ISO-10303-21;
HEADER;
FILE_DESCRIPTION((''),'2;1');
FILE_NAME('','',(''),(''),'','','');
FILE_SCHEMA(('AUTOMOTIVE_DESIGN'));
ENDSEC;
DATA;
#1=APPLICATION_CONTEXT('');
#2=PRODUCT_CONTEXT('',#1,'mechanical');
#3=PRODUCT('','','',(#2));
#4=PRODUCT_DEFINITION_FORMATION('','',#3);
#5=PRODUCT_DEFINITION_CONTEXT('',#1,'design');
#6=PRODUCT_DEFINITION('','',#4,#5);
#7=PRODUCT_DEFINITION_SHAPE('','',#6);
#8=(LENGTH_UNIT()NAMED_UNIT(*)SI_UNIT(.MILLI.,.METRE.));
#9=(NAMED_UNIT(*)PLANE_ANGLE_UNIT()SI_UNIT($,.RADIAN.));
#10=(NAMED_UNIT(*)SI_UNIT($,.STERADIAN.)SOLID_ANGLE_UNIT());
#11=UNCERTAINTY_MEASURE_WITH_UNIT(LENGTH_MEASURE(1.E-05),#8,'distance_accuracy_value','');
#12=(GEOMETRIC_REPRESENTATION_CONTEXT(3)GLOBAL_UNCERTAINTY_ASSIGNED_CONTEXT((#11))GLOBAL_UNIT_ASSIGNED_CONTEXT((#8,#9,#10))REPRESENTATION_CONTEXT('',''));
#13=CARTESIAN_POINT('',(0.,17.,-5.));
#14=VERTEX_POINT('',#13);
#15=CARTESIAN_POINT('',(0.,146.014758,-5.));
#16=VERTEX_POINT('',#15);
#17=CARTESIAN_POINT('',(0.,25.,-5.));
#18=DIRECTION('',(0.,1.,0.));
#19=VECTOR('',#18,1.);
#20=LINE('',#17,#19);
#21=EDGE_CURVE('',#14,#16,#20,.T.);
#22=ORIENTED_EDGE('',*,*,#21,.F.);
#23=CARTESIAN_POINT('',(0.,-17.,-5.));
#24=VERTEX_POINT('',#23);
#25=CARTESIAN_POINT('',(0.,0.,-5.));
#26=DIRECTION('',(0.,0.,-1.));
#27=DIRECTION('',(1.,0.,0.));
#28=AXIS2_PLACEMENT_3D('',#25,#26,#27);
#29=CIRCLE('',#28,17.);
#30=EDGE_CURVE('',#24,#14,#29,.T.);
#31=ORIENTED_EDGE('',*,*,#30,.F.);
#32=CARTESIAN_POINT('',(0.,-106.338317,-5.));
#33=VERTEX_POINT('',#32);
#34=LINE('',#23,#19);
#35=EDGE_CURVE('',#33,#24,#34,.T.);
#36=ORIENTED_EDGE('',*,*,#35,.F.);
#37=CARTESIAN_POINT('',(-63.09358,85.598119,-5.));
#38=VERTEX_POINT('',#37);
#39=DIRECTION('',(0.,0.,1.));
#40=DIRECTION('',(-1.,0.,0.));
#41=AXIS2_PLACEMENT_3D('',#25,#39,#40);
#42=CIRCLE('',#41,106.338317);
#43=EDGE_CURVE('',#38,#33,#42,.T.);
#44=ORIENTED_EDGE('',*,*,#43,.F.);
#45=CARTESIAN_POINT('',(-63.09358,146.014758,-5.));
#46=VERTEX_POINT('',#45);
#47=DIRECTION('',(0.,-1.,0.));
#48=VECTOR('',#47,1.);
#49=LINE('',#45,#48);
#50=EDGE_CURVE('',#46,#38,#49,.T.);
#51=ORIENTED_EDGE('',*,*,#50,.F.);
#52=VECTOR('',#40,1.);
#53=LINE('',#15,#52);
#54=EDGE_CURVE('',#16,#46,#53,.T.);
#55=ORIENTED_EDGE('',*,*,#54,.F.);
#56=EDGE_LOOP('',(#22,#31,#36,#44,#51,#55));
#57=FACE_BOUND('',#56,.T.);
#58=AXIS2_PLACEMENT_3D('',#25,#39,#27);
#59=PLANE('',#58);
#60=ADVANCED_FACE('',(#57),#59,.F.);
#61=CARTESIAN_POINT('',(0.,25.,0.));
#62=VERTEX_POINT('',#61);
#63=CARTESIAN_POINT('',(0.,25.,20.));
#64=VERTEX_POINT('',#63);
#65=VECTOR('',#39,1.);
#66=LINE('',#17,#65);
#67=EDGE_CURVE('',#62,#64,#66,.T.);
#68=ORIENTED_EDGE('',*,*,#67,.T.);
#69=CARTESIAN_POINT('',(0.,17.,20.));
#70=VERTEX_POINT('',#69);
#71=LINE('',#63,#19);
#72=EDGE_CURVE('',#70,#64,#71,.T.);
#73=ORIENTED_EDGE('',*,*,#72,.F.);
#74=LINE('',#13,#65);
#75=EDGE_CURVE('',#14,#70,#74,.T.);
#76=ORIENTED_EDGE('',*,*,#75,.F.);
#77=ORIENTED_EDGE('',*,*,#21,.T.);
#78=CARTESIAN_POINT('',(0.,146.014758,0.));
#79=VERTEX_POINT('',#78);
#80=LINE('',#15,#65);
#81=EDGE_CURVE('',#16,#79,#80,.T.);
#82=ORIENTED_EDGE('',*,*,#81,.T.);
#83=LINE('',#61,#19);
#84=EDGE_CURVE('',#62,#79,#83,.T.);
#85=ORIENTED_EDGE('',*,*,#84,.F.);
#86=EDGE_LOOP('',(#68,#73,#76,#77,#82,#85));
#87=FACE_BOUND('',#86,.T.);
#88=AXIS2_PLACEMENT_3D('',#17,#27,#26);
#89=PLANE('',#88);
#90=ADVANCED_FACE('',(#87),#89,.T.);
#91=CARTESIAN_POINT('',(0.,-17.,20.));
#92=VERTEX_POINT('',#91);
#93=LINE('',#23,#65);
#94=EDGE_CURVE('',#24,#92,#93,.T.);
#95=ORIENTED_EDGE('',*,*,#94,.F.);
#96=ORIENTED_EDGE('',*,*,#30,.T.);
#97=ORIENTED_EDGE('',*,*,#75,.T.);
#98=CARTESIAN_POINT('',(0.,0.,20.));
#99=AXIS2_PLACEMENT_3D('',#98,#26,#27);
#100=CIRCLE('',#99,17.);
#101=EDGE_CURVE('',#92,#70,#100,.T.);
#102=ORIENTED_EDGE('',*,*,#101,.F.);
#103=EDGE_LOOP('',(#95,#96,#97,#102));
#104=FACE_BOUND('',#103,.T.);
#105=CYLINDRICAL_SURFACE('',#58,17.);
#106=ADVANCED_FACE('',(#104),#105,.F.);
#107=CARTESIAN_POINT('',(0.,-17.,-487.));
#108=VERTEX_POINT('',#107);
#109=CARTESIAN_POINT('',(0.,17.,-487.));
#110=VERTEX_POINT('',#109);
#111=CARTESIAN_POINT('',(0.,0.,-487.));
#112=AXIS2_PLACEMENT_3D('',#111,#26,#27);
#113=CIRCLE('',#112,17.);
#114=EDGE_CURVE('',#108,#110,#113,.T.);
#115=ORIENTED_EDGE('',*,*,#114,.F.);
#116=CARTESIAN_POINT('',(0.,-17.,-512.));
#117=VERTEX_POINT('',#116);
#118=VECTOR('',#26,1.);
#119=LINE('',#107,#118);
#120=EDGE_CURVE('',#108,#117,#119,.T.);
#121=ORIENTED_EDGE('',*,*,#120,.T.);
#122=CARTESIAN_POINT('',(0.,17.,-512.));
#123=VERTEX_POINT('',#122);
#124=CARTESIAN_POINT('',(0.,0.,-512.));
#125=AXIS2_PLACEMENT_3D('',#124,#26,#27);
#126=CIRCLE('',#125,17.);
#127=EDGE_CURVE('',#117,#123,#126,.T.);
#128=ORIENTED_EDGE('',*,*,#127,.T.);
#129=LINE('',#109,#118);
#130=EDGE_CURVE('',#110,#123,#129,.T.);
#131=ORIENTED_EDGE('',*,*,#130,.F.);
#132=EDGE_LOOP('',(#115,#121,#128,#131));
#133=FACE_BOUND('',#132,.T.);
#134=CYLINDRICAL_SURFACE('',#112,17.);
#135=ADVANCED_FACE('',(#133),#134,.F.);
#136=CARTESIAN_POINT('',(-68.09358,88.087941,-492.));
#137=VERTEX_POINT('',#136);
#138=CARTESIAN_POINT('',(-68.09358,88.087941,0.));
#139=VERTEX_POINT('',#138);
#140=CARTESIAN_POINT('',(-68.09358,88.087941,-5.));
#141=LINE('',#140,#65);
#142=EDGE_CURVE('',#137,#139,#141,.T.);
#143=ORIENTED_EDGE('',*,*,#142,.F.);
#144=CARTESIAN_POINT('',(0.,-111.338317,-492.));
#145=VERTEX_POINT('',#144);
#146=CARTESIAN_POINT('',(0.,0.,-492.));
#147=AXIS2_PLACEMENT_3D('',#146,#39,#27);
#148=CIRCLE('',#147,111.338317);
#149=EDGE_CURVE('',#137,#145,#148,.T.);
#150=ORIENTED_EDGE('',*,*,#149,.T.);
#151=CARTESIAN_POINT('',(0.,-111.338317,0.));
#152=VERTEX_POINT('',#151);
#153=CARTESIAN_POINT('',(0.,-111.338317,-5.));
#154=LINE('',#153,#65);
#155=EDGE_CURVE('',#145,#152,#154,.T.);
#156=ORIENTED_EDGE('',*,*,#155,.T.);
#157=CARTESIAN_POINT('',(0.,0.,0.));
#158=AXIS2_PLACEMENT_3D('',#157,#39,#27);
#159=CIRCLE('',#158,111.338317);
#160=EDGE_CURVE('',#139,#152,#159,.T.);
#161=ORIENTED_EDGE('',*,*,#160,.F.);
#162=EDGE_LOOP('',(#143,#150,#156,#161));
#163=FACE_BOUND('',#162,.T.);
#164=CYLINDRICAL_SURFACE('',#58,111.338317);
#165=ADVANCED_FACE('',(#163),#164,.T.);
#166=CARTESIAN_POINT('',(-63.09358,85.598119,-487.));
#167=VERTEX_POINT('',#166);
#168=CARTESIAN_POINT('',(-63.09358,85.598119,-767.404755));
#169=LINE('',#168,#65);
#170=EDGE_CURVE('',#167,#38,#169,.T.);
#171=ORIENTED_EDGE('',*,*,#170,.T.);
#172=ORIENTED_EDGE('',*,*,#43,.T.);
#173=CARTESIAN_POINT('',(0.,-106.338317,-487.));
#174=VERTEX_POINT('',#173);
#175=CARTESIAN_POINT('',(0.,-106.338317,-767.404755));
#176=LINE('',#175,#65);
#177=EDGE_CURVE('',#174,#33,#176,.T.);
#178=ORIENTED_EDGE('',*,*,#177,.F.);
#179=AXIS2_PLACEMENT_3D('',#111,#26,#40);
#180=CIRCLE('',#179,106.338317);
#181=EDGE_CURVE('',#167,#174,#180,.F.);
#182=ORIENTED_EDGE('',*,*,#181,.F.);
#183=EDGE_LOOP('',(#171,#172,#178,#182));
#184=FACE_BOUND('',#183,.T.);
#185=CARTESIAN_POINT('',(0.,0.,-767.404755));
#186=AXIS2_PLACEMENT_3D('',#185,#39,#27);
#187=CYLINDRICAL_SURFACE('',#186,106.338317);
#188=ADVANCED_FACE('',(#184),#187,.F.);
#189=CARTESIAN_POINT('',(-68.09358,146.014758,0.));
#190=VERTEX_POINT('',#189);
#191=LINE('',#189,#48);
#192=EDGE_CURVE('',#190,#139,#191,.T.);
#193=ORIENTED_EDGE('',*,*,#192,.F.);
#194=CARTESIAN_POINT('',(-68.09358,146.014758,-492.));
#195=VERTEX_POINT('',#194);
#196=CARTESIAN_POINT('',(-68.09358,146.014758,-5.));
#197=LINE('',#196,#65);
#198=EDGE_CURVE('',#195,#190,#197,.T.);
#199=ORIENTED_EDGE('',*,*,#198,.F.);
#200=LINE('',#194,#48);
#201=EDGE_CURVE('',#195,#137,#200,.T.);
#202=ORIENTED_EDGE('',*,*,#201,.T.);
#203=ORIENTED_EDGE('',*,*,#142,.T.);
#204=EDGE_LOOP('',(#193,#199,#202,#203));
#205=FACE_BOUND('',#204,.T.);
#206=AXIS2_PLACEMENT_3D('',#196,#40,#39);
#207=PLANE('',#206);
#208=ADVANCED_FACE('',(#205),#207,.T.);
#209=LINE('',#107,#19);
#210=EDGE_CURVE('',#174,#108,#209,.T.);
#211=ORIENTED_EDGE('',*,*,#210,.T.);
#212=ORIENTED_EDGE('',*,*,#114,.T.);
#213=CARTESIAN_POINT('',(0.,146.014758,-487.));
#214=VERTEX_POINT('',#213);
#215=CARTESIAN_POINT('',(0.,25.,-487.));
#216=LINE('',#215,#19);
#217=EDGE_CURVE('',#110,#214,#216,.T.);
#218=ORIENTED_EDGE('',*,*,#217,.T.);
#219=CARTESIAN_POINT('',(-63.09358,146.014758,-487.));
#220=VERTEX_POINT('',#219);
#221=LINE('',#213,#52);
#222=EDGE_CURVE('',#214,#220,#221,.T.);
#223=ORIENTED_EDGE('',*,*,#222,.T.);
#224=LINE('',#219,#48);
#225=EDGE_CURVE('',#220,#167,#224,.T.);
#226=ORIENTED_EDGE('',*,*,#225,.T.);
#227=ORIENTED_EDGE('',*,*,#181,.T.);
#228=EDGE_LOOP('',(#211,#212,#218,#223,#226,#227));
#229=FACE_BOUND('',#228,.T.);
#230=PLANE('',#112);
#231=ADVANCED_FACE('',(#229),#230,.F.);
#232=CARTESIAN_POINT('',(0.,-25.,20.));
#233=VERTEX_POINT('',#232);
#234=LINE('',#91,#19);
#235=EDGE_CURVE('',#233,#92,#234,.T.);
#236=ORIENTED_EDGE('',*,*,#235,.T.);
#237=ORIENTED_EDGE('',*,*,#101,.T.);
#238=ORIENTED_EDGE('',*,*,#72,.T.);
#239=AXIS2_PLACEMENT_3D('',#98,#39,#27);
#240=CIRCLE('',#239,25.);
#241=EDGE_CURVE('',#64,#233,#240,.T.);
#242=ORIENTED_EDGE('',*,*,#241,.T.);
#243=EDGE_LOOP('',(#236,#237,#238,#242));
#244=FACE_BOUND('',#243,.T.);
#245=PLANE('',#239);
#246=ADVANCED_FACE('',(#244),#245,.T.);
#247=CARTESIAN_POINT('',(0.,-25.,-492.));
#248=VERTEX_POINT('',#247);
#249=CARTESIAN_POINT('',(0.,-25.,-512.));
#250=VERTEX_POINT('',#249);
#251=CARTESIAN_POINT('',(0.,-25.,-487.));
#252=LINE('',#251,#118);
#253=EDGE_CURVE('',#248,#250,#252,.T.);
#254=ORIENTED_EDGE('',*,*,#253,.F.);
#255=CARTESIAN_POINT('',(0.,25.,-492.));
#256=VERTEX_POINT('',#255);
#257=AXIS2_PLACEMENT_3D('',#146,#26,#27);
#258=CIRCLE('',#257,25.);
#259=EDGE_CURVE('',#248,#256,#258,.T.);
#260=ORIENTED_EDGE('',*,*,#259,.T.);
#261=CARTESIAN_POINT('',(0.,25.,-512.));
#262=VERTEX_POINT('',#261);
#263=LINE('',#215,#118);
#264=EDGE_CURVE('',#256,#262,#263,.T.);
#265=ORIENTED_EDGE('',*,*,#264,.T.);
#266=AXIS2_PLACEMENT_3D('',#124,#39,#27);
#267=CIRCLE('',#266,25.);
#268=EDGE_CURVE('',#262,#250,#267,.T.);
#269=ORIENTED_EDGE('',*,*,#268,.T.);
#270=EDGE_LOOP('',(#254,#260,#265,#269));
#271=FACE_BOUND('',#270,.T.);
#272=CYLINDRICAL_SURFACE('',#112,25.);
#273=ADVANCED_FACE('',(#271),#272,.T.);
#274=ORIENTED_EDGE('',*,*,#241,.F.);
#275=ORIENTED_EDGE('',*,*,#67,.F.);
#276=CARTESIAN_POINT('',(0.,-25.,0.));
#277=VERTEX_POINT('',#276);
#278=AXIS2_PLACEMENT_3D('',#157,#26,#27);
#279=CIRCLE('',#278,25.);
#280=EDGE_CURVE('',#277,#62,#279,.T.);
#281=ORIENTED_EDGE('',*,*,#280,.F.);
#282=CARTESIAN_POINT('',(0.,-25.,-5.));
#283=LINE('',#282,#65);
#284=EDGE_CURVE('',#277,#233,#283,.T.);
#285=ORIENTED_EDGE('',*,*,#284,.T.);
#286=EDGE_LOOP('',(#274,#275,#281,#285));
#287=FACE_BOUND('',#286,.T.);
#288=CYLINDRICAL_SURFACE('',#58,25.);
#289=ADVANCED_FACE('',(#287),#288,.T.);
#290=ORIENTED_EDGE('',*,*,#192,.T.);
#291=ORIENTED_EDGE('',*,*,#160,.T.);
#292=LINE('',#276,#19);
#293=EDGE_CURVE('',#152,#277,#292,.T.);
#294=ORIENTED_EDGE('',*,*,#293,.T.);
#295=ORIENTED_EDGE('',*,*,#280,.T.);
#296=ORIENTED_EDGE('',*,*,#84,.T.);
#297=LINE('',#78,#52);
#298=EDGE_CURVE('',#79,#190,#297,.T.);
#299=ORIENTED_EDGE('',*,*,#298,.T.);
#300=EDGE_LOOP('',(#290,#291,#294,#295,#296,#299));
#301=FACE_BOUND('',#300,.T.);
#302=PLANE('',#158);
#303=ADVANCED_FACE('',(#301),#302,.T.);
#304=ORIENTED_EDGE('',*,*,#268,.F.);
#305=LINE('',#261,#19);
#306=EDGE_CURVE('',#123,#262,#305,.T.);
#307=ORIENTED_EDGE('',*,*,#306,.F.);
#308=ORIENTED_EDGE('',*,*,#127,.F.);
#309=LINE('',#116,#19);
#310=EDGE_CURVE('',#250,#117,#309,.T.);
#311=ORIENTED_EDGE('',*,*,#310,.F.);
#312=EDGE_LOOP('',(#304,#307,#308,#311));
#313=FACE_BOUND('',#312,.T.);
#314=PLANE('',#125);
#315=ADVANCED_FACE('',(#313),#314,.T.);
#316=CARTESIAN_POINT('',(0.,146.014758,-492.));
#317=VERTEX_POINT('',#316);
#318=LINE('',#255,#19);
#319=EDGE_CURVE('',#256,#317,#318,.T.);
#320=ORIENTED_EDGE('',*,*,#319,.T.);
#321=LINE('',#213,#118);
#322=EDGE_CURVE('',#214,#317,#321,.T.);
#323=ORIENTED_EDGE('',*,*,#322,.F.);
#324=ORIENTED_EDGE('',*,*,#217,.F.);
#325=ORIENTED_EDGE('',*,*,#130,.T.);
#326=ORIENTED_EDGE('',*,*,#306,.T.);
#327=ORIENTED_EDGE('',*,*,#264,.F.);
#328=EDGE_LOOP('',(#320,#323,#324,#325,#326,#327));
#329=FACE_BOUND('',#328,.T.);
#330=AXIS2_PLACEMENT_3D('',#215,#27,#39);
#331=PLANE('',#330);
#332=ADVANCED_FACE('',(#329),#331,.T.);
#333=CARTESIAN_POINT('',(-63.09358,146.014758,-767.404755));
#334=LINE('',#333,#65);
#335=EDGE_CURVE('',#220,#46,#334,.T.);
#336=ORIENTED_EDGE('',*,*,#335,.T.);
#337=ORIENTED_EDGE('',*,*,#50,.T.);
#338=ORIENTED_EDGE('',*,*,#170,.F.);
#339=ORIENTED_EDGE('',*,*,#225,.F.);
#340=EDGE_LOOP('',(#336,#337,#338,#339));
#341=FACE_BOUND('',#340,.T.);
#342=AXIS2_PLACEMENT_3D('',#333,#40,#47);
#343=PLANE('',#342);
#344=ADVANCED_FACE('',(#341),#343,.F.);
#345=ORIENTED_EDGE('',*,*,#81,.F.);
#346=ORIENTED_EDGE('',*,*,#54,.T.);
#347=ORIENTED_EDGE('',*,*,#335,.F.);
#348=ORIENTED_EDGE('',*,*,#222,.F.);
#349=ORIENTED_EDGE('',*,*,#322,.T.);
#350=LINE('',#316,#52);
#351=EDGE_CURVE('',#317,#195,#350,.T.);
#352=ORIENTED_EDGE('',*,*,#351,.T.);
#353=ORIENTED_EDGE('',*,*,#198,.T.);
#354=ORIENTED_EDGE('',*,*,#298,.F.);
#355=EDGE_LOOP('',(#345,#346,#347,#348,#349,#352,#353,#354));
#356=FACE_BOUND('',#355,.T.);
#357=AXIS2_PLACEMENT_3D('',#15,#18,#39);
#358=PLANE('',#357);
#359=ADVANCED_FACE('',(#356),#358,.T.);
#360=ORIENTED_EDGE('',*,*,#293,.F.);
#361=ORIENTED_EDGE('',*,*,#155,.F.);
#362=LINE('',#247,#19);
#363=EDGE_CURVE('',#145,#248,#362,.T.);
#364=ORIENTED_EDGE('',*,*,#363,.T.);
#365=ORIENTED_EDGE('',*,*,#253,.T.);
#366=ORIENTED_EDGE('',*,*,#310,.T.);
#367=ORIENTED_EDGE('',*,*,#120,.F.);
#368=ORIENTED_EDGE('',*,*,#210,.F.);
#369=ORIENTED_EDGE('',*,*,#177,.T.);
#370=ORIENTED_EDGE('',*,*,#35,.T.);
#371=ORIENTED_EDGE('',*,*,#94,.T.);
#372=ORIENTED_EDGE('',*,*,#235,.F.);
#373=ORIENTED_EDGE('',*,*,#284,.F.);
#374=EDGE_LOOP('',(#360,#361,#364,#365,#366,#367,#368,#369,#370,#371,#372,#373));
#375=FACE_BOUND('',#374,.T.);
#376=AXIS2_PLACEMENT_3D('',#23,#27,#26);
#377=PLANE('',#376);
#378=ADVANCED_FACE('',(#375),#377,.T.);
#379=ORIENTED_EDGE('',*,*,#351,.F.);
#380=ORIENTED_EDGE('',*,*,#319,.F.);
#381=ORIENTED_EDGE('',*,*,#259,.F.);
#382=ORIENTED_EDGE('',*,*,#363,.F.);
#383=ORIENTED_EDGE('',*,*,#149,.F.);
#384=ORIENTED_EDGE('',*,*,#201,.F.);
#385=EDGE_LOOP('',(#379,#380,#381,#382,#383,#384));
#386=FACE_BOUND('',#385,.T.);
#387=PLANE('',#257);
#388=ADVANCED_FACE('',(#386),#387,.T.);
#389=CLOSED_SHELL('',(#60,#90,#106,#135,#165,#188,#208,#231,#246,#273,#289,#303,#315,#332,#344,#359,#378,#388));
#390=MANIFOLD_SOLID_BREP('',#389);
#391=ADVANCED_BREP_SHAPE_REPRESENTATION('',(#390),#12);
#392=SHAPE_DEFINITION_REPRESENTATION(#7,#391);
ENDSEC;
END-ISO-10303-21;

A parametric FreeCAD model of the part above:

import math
import FreeCAD as App
import Part
import Sketcher

V = App.Vector

doc = App.newDocument("Part")
body = doc.addObject("PartDesign::Body", "Body")

# Sketch on XY plane
sketch1 = body.newObject("Sketcher::SketchObject", "Sketch")
sketch1.AttachmentSupport = (doc.getObject("XY_Plane"), [""])
sketch1.MapMode = "FlatFace"
sketch1.addGeometry(Part.LineSegment(V(0, 17, 0), V(0, 25, 0)), False)
sketch1.addGeometry(Part.ArcOfCircle(Part.Circle(V(0, 0, 0), V(0, 0, 1), 25), math.radians(90), math.radians(270)), False)
sketch1.addGeometry(Part.LineSegment(V(0, -25, 0), V(0, -17, 0)), False)
sketch1.addGeometry(Part.ArcOfCircle(Part.Circle(V(0, 0, 0), V(0, 0, 1), 17), math.radians(90), math.radians(270)), False)
sketch1.addConstraint(Sketcher.Constraint("Coincident", 0, 2, 1, 1))
sketch1.addConstraint(Sketcher.Constraint("Coincident", 1, 2, 2, 1))
sketch1.addConstraint(Sketcher.Constraint("Coincident", 2, 2, 3, 2))
sketch1.addConstraint(Sketcher.Constraint("Coincident", 3, 1, 0, 1))
sketch1.addConstraint(Sketcher.Constraint("Vertical", 0))
sketch1.addConstraint(Sketcher.Constraint("Vertical", 2))
sketch1.addConstraint(Sketcher.Constraint("Coincident", 1, 3, -1, 1))
sketch1.addConstraint(Sketcher.Constraint("Coincident", 3, 3, -1, 1))
sketch1.addConstraint(Sketcher.Constraint("PointOnObject", 0, 2, -2))
sketch1.addConstraint(Sketcher.Constraint("PointOnObject", 1, 2, -2))
sketch1.addConstraint(Sketcher.Constraint("Radius", 1, 25.0))
sketch1.addConstraint(Sketcher.Constraint("Radius", 3, 17.0))
pad1 = body.newObject("PartDesign::Pad", "Pad")
pad1.Profile = sketch1
pad1.Type = "TwoLengths"
pad1.Length = 20
pad1.Length2 = 5

# Sketch on XY plane
sketch2 = body.newObject("Sketcher::SketchObject", "Sketch001")
sketch2.AttachmentSupport = (doc.getObject("XY_Plane"), [""])
sketch2.MapMode = "FlatFace"
sketch2.AttachmentOffset = App.Placement(V(0, 0, -5), App.Rotation())
sketch2.addGeometry(Part.LineSegment(V(0, 25, 0), V(0, 146, 0)), False)
sketch2.addGeometry(Part.LineSegment(V(0, 146, 0), V(-68, 146, 0)), False)
sketch2.addGeometry(Part.LineSegment(V(-68, 146, 0), V(-68, 88, 0)), False)
sketch2.addGeometry(Part.ArcOfCircle(Part.Circle(V(0, 0, 0), V(0, 0, 1), 111), math.radians(128), math.radians(270)), False)
sketch2.addGeometry(Part.LineSegment(V(0, -111, 0), V(0, -25, 0)), False)
sketch2.addGeometry(Part.ArcOfCircle(Part.Circle(V(0, 0, 0), V(0, 0, 1), 25), math.radians(90), math.radians(270)), False)
sketch2.addConstraint(Sketcher.Constraint("Coincident", 0, 2, 1, 1))
sketch2.addConstraint(Sketcher.Constraint("Coincident", 1, 2, 2, 1))
sketch2.addConstraint(Sketcher.Constraint("Coincident", 2, 2, 3, 1))
sketch2.addConstraint(Sketcher.Constraint("Coincident", 3, 2, 4, 1))
sketch2.addConstraint(Sketcher.Constraint("Coincident", 4, 2, 5, 2))
sketch2.addConstraint(Sketcher.Constraint("Coincident", 5, 1, 0, 1))
sketch2.addConstraint(Sketcher.Constraint("Vertical", 0))
sketch2.addConstraint(Sketcher.Constraint("Horizontal", 1))
sketch2.addConstraint(Sketcher.Constraint("Vertical", 2))
sketch2.addConstraint(Sketcher.Constraint("Vertical", 4))
sketch2.addConstraint(Sketcher.Constraint("Coincident", 3, 3, -1, 1))
sketch2.addConstraint(Sketcher.Constraint("Coincident", 5, 3, -1, 1))
sketch2.addConstraint(Sketcher.Constraint("PointOnObject", 0, 2, -2))
sketch2.addConstraint(Sketcher.Constraint("PointOnObject", 3, 2, -2))
sketch2.addConstraint(Sketcher.Constraint("Radius", 5, 25.0))
sketch2.addConstraint(Sketcher.Constraint("Radius", 3, 111.338317))
sketch2.addConstraint(Sketcher.Constraint("DistanceX", 1, 2, 1, 1, 68.09358))
sketch2.addConstraint(Sketcher.Constraint("DistanceY", 0, 1, 0, 2, 121.014758))
pad2 = body.newObject("PartDesign::Pad", "Pad001")
pad2.Profile = sketch2
pad2.Length = 5
body2 = doc.addObject("PartDesign::Body", "Body001")
body2.AllowCompound = True
doc.recompute()

mirroring = doc.addObject("Part::Mirroring", "Mirroring")
mirroring.Source = body
mirroring.Base = V(0, 0, -246)
mirroring.Normal = V(0, 0, 1)
body2.BaseFeature = mirroring
doc.recompute()

boolean = body2.newObject("PartDesign::Boolean", "Boolean")
boolean.Type = "Fuse"
boolean.addObjects([body])

# Sketch on XY plane
sketch3 = body2.newObject("Sketcher::SketchObject", "Sketch002")
sketch3.AttachmentSupport = (doc.getObject("XY_Plane001"), [""])
sketch3.MapMode = "FlatFace"
sketch3.AttachmentOffset = App.Placement(V(0, 0, -5), App.Rotation())
sketch3.addGeometry(Part.LineSegment(V(-68, 88, 0), V(-68, 146, 0)), False)
sketch3.addGeometry(Part.LineSegment(V(-68, 146, 0), V(-63, 146, 0)), False)
sketch3.addGeometry(Part.LineSegment(V(-63, 146, 0), V(-63, 86, 0)), False)
sketch3.addGeometry(Part.ArcOfCircle(Part.Circle(V(0, 0, 0), V(0, 0, 1), 106), math.radians(126), math.radians(270)), False)
sketch3.addGeometry(Part.LineSegment(V(0, -106, 0), V(0, -111, 0)), False)
sketch3.addGeometry(Part.ArcOfCircle(Part.Circle(V(0, 0, 0), V(0, 0, 1), 111), math.radians(128), math.radians(270)), False)
sketch3.addConstraint(Sketcher.Constraint("Coincident", 0, 2, 1, 1))
sketch3.addConstraint(Sketcher.Constraint("Coincident", 1, 2, 2, 1))
sketch3.addConstraint(Sketcher.Constraint("Coincident", 2, 2, 3, 1))
sketch3.addConstraint(Sketcher.Constraint("Coincident", 3, 2, 4, 1))
sketch3.addConstraint(Sketcher.Constraint("Coincident", 4, 2, 5, 2))
sketch3.addConstraint(Sketcher.Constraint("Coincident", 5, 1, 0, 1))
sketch3.addConstraint(Sketcher.Constraint("Vertical", 0))
sketch3.addConstraint(Sketcher.Constraint("Horizontal", 1))
sketch3.addConstraint(Sketcher.Constraint("Vertical", 2))
sketch3.addConstraint(Sketcher.Constraint("Vertical", 4))
sketch3.addConstraint(Sketcher.Constraint("Coincident", 3, 3, -1, 1))
sketch3.addConstraint(Sketcher.Constraint("Coincident", 5, 3, -1, 1))
sketch3.addConstraint(Sketcher.Constraint("PointOnObject", 3, 2, -2))
sketch3.addConstraint(Sketcher.Constraint("Equal", 1, 4))
sketch3.addConstraint(Sketcher.Constraint("DistanceX", 1, 1, 1, 2, 5.0))
sketch3.addConstraint(Sketcher.Constraint("Radius", 3, 106.338317))
sketch3.addConstraint(Sketcher.Constraint("DistanceY", 2, 2, 2, 1, 60.416639))
sketch3.addConstraint(Sketcher.Constraint("DistanceY", 0, 1, 0, 2, 57.926817))
pad3 = body2.newObject("PartDesign::Pad", "Pad002")
pad3.Profile = sketch3
pad3.Type = "UpToFirst"
pad3.Reversed = True
mirroring.Visibility = False

doc.recompute()
